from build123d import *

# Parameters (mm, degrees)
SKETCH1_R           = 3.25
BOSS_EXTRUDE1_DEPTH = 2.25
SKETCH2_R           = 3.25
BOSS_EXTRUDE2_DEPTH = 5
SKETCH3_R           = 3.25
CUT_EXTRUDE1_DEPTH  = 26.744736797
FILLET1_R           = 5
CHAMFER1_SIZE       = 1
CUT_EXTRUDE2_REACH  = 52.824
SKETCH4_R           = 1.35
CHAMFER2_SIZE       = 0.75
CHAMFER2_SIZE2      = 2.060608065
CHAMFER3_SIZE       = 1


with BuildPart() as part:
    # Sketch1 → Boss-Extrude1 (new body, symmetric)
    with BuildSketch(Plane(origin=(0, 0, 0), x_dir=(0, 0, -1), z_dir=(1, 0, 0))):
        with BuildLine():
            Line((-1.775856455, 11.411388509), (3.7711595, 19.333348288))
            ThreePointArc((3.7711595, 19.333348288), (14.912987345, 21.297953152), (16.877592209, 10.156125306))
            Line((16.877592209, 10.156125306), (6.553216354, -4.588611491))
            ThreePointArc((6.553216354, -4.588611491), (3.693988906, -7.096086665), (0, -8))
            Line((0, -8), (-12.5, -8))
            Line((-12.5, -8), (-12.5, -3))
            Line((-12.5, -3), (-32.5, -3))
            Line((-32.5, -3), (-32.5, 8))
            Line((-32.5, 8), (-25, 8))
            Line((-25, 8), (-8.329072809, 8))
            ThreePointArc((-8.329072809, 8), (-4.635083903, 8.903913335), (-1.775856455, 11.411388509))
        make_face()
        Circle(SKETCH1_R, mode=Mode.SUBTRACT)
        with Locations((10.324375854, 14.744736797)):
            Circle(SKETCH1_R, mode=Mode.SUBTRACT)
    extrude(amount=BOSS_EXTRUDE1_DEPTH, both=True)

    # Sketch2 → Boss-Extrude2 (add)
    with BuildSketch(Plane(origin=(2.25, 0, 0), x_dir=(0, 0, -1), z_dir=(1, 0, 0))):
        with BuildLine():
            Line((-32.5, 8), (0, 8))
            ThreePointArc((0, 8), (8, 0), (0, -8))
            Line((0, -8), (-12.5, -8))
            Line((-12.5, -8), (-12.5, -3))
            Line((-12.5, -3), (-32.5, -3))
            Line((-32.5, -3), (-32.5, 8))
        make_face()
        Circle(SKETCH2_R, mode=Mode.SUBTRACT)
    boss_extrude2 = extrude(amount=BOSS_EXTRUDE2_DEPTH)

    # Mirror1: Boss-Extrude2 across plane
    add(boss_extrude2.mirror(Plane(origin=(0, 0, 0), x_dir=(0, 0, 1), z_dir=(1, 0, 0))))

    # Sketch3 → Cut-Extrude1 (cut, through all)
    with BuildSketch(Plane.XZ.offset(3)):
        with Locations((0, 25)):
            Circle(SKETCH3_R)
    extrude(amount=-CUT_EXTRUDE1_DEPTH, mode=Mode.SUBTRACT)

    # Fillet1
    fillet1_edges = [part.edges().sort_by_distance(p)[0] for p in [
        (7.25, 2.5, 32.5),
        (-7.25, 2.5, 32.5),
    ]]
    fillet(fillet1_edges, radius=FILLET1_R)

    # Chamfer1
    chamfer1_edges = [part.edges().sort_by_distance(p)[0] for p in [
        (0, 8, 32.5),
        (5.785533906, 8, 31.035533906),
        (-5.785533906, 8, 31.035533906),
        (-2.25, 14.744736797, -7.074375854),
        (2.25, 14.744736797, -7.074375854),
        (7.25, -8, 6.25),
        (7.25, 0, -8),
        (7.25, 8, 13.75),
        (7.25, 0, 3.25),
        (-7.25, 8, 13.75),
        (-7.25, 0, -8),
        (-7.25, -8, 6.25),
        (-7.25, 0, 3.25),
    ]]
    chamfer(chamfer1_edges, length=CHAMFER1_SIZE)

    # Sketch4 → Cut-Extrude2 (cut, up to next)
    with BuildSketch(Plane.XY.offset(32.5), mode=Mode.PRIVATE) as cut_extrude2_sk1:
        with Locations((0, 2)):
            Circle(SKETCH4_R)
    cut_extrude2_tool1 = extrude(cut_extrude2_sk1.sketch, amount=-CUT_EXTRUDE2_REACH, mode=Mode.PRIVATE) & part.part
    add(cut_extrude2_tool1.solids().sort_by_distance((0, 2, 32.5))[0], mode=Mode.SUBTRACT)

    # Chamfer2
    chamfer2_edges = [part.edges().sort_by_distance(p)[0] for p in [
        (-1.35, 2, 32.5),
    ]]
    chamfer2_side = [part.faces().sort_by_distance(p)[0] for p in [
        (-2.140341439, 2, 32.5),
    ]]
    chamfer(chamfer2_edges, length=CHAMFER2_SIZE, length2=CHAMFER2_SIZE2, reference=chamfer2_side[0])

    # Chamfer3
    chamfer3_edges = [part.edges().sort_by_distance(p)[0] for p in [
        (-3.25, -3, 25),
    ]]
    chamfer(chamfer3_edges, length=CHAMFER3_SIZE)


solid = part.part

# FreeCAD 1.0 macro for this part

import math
import FreeCAD as App
import Part
import Sketcher

V = App.Vector
Q = App.Units.Quantity


def edges_at(feature, points):
    """Names of the edges that pass closest to the given points."""
    edges = feature.Shape.Edges
    near = lambda p: min(range(len(edges)), key=lambda i: edges[i].distToShape(Part.Vertex(*p))[0])
    return sorted({f"Edge{near(p) + 1}" for p in points})

doc = App.newDocument("Part")
body = doc.addObject("PartDesign::Body", "Body")

# Sketch on YZ plane
sketch1 = body.newObject("Sketcher::SketchObject", "Sketch")
sketch1.AttachmentSupport = (doc.getObject("YZ_Plane"), [""])
sketch1.MapMode = "FlatFace"
sketch1.addGeometry(Part.LineSegment(V(19.3, -3.8, 0), V(11.4, 1.8, 0)), False)
sketch1.addGeometry(Part.ArcOfCircle(Part.Circle(V(16, 8.3, 0), V(0, 0, 1), 8), math.radians(-180), math.radians(-125)), False)
sketch1.addGeometry(Part.LineSegment(V(8, 8.3, 0), V(8, 32.5, 0)), False)
sketch1.addGeometry(Part.LineSegment(V(8, 32.5, 0), V(-3, 32.5, 0)), False)
sketch1.addGeometry(Part.LineSegment(V(-3, 32.5, 0), V(-3, 12.5, 0)), False)
sketch1.addGeometry(Part.LineSegment(V(-3, 12.5, 0), V(-8, 12.5, 0)), False)
sketch1.addGeometry(Part.LineSegment(V(-8, 12.5, 0), V(-8, 0, 0)), False)
sketch1.addGeometry(Part.ArcOfCircle(Part.Circle(V(0, 0, 0), V(0, 0, 1), 8), math.radians(-180), math.radians(-125)), False)
sketch1.addGeometry(Part.LineSegment(V(-4.6, -6.6, 0), V(10.2, -16.9, 0)), False)
sketch1.addGeometry(Part.ArcOfCircle(Part.Circle(V(14.7, -10.3, 0), V(0, 0, 1), 8), math.radians(-125), math.radians(55)), False)
sketch1.addGeometry(Part.Circle(V(0, 0, 0), V(0, 0, 1), 3.2), False)
sketch1.addGeometry(Part.Circle(V(14.7, -10.3, 0), V(0, 0, 1), 3.2), False)
sketch1.addConstraint(Sketcher.Constraint("Tangent", 0, 2, 1, 2))
sketch1.addConstraint(Sketcher.Constraint("Tangent", 1, 1, 2, 1))
sketch1.addConstraint(Sketcher.Constraint("Coincident", 2, 2, 3, 1))
sketch1.addConstraint(Sketcher.Constraint("Coincident", 3, 2, 4, 1))
sketch1.addConstraint(Sketcher.Constraint("Coincident", 4, 2, 5, 1))
sketch1.addConstraint(Sketcher.Constraint("Coincident", 5, 2, 6, 1))
sketch1.addConstraint(Sketcher.Constraint("Tangent", 6, 2, 7, 1))
sketch1.addConstraint(Sketcher.Constraint("Tangent", 7, 2, 8, 1))
sketch1.addConstraint(Sketcher.Constraint("Tangent", 8, 2, 9, 1))
sketch1.addConstraint(Sketcher.Constraint("Tangent", 9, 2, 0, 1))
sketch1.addConstraint(Sketcher.Constraint("Vertical", 2))
sketch1.addConstraint(Sketcher.Constraint("Horizontal", 3))
sketch1.addConstraint(Sketcher.Constraint("Vertical", 4))
sketch1.addConstraint(Sketcher.Constraint("Horizontal", 5))
sketch1.addConstraint(Sketcher.Constraint("Vertical", 6))
sketch1.addConstraint(Sketcher.Constraint("Coincident", 7, 3, -1, 1))
sketch1.addConstraint(Sketcher.Constraint("Coincident", 10, 3, -1, 1))
sketch1.addConstraint(Sketcher.Constraint("Coincident", 11, 3, 9, 3))
sketch1.addConstraint(Sketcher.Constraint("Equal", 1, 7))
sketch1.addConstraint(Sketcher.Constraint("Equal", 7, 9))
sketch1.addConstraint(Sketcher.Constraint("Equal", 10, 11))
sketch1.addConstraint(Sketcher.Constraint("Parallel", 0, 8))
sketch1.addConstraint(Sketcher.Constraint("Radius", 1, 8.0))
sketch1.addConstraint(Sketcher.Constraint("Diameter", 10, 6.5))
sketch1.addConstraint(Sketcher.Constraint("DistanceX", 3, 2, 3, 1, 11.0))
sketch1.addConstraint(Sketcher.Constraint("DistanceX", 5, 2, 5, 1, 5.0))
sketch1.addConstraint(Sketcher.Constraint("DistanceY", 4, 2, 4, 1, 20.0))
sketch1.addConstraint(Sketcher.Constraint("Angle", 0, Q("145 deg")))
sketch1.addConstraint(Sketcher.Constraint("Distance", 8, 18.0))
sketch1.addConstraint(Sketcher.Constraint("DistanceY", 6, 2, 6, 1, 12.5))
pad1 = body.newObject("PartDesign::Pad", "Pad")
pad1.Profile = sketch1
pad1.Length = 4.5
pad1.Midplane = True

# Sketch on YZ plane
sketch2 = body.newObject("Sketcher::SketchObject", "Sketch001")
sketch2.AttachmentSupport = (doc.getObject("YZ_Plane"), [""])
sketch2.MapMode = "FlatFace"
sketch2.AttachmentOffset = App.Placement(V(0, 0, 2.25), App.Rotation())
sketch2.addGeometry(Part.LineSegment(V(8, 0, 0), V(8, 32.5, 0)), False)
sketch2.addGeometry(Part.LineSegment(V(8, 32.5, 0), V(-3, 32.5, 0)), False)
sketch2.addGeometry(Part.LineSegment(V(-3, 32.5, 0), V(-3, 12.5, 0)), False)
sketch2.addGeometry(Part.LineSegment(V(-3, 12.5, 0), V(-8, 12.5, 0)), False)
sketch2.addGeometry(Part.LineSegment(V(-8, 12.5, 0), V(-8, 0, 0)), False)
sketch2.addGeometry(Part.ArcOfCircle(Part.Circle(V(0, 0, 0), V(0, 0, 1), 8), math.radians(180), math.radians(360)), False)
sketch2.addGeometry(Part.Circle(V(0, 0, 0), V(0, 0, 1), 3.2), False)
sketch2.addConstraint(Sketcher.Constraint("Coincident", 0, 2, 1, 1))
sketch2.addConstraint(Sketcher.Constraint("Coincident", 1, 2, 2, 1))
sketch2.addConstraint(Sketcher.Constraint("Coincident", 2, 2, 3, 1))
sketch2.addConstraint(Sketcher.Constraint("Coincident", 3, 2, 4, 1))
sketch2.addConstraint(Sketcher.Constraint("Tangent", 4, 2, 5, 1))
sketch2.addConstraint(Sketcher.Constraint("Tangent", 5, 2, 0, 1))
sketch2.addConstraint(Sketcher.Constraint("Vertical", 0))
sketch2.addConstraint(Sketcher.Constraint("Horizontal", 1))
sketch2.addConstraint(Sketcher.Constraint("Vertical", 2))
sketch2.addConstraint(Sketcher.Constraint("Horizontal", 3))
sketch2.addConstraint(Sketcher.Constraint("Vertical", 4))
sketch2.addConstraint(Sketcher.Constraint("Coincident", 5, 3, -1, 1))
sketch2.addConstraint(Sketcher.Constraint("Coincident", 6, 3, -1, 1))
sketch2.addConstraint(Sketcher.Constraint("Radius", 5, 8.0))
sketch2.addConstraint(Sketcher.Constraint("Diameter", 6, 6.5))
sketch2.addConstraint(Sketcher.Constraint("DistanceX", 1, 2, 1, 1, 11.0))
sketch2.addConstraint(Sketcher.Constraint("DistanceY", 2, 2, 2, 1, 20.0))
sketch2.addConstraint(Sketcher.Constraint("DistanceY", 0, 1, 0, 2, 32.5))
pad2 = body.newObject("PartDesign::Pad", "Pad001")
pad2.Profile = sketch2
pad2.Length = 5
doc.recompute()

mirrored = body.newObject("PartDesign::Mirrored", "Mirrored")
mirrored.Originals = [pad2]
mirrored.MirrorPlane = (doc.getObject("YZ_Plane"), [""])
body.Tip = mirrored

# Sketch on XZ plane
sketch3 = body.newObject("Sketcher::SketchObject", "Sketch002")
sketch3.AttachmentSupport = (doc.getObject("XZ_Plane"), [""])
sketch3.MapMode = "FlatFace"
sketch3.AttachmentOffset = App.Placement(V(0, 0, 3), App.Rotation())
sketch3.addGeometry(Part.Circle(V(0, 25, 0), V(0, 0, 1), 3.2), False)
sketch3.addConstraint(Sketcher.Constraint("PointOnObject", 0, 3, -2))
sketch3.addConstraint(Sketcher.Constraint("Diameter", 0, 6.5))
sketch3.addConstraint(Sketcher.Constraint("DistanceY", -1, 1, 0, 3, 25.0))
pocket1 = body.newObject("PartDesign::Pocket", "Pocket")
pocket1.Profile = sketch3
pocket1.Type = "ThroughAll"
doc.recompute()

fillet = body.newObject("PartDesign::Fillet", "Fillet")
fillet.Base = (pocket1, edges_at(pocket1, [(7.25, 2.5, 32.5), (-7.25, 2.5, 32.5)]))
fillet.Radius = 5
doc.recompute()

chamfer = body.newObject("PartDesign::Chamfer", "Chamfer")
chamfer.Base = (fillet, edges_at(fillet, [
    (0, 8, 32.5),
    (5.786, 8, 31.036),
    (-5.786, 8, 31.036),
    (-2.25, 14.745, -7.074),
    (2.25, 14.745, -7.074),
    (7.25, -8, 6.25),
    (7.25, 0, -8),
    (7.25, 8, 13.75),
    (7.25, 0, 3.25),
    (-7.25, 8, 13.75),
    (-7.25, 0, -8),
    (-7.25, -8, 6.25),
    (-7.25, 0, 3.25),
]))
chamfer.Size = 1

# Sketch on XY plane
sketch4 = body.newObject("Sketcher::SketchObject", "Sketch003")
sketch4.AttachmentSupport = (doc.getObject("XY_Plane"), [""])
sketch4.MapMode = "FlatFace"
sketch4.AttachmentOffset = App.Placement(V(0, 0, 32.5), App.Rotation())
sketch4.addGeometry(Part.Circle(V(0, 2, 0), V(0, 0, 1), 1.4), False)
sketch4.addConstraint(Sketcher.Constraint("PointOnObject", 0, 3, -2))
sketch4.addConstraint(Sketcher.Constraint("Diameter", 0, 2.7))
sketch4.addConstraint(Sketcher.Constraint("DistanceY", -1, 1, 0, 3, 2.0))
pocket2 = body.newObject("PartDesign::Pocket", "Pocket001")
pocket2.Profile = sketch4
pocket2.Type = "UpToFirst"
doc.recompute()

chamfer2 = body.newObject("PartDesign::Chamfer", "Chamfer001")
chamfer2.Base = (pocket2, edges_at(pocket2, [(-1.35, 2, 32.5)]))
chamfer2.ChamferType = "Two distances"
chamfer2.Size = 0.75
chamfer2.Size2 = 2.060608
doc.recompute()

chamfer3 = body.newObject("PartDesign::Chamfer", "Chamfer002")
chamfer3.Base = (chamfer2, edges_at(chamfer2, [(-3.25, -3, 25)]))
chamfer3.Size = 1

doc.recompute()
